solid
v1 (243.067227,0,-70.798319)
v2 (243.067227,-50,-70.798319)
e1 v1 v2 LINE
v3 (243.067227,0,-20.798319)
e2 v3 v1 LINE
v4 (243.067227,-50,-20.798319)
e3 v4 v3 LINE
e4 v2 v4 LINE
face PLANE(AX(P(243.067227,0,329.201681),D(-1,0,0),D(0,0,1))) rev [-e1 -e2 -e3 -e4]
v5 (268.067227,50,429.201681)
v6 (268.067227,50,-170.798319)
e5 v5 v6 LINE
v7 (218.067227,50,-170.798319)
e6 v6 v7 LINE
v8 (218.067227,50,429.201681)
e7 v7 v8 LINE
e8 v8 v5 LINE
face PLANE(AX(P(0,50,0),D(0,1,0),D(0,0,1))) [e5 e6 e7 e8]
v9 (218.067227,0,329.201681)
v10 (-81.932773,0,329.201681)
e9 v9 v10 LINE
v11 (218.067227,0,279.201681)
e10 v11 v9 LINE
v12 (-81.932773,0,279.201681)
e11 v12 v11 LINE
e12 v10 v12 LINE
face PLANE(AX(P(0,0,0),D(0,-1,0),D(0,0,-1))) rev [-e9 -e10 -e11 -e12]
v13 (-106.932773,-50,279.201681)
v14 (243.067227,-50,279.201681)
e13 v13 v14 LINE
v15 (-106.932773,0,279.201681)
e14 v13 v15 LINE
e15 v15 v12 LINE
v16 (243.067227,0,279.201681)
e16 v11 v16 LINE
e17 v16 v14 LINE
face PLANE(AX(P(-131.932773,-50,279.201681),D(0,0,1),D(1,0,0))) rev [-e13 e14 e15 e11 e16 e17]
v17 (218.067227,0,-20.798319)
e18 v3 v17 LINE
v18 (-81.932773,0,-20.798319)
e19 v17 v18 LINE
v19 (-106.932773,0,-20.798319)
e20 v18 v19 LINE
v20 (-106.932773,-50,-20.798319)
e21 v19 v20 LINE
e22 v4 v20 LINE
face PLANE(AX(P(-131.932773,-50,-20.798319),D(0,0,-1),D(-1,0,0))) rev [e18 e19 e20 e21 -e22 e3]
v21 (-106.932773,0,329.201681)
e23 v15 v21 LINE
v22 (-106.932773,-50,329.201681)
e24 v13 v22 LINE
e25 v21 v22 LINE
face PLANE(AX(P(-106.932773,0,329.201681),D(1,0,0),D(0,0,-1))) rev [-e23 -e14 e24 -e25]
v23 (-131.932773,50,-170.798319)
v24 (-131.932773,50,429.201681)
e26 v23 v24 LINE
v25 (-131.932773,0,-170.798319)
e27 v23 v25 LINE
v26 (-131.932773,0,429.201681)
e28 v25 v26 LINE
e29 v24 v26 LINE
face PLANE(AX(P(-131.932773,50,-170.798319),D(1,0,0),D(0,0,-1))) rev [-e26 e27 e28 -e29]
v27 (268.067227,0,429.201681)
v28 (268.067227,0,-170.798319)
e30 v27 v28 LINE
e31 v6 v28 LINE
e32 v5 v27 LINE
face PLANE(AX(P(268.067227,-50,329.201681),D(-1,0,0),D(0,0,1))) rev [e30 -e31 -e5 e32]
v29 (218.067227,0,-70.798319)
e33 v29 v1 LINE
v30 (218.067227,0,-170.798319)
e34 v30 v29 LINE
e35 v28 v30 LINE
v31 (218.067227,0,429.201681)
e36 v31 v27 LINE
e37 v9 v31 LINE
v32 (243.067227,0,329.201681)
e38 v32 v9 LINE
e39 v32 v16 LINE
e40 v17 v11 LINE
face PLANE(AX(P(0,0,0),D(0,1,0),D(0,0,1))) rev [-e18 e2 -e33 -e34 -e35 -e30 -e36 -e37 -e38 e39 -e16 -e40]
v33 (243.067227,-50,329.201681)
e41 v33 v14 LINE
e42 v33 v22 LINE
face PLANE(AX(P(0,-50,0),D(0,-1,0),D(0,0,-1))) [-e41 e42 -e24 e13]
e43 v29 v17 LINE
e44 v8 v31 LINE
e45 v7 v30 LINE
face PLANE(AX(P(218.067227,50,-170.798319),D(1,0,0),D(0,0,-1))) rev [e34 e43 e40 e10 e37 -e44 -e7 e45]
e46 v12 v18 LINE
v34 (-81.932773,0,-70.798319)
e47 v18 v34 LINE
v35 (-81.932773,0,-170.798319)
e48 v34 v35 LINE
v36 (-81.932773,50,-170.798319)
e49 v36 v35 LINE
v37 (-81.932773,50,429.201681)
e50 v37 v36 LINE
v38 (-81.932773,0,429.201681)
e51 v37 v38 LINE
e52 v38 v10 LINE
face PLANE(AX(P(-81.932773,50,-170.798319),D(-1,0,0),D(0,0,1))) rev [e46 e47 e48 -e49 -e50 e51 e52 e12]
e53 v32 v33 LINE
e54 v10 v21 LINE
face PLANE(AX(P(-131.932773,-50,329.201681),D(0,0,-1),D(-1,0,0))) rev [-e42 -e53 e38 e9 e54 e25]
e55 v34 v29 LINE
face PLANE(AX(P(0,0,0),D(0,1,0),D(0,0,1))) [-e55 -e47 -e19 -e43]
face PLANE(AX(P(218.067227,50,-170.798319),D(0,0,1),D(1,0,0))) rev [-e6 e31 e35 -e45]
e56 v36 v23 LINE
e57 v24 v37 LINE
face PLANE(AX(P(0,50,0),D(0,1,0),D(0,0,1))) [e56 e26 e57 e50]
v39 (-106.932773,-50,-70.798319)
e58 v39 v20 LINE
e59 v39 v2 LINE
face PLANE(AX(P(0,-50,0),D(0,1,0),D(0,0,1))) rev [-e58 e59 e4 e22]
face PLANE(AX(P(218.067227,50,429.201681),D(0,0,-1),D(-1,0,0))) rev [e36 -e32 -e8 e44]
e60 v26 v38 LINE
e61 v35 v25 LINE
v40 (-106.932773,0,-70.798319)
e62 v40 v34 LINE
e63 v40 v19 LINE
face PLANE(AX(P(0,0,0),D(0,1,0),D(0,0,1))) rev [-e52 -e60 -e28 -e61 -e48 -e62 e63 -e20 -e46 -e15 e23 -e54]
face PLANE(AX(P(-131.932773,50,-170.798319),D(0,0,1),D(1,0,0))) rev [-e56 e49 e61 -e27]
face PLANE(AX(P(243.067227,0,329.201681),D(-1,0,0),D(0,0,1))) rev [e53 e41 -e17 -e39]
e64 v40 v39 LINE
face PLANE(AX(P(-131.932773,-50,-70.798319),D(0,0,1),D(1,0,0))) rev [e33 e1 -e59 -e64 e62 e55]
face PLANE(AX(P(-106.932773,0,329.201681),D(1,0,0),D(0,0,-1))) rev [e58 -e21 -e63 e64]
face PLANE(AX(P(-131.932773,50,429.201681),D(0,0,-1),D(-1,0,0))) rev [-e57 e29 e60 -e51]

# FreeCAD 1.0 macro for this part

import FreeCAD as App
import Part
import Sketcher
Q = App.Units.Quantity


def add_polygon(sketch, points):
    """Adds a closed chain of lines whose ends are joined by coincident constraints."""
    first, n = sketch.GeometryCount, len(points)
    for a, b in zip(points, points[1:] + points[:1]):
        sketch.addGeometry(Part.LineSegment(App.Vector(*a, 0), App.Vector(*b, 0)), False)
    for i in range(n):
        sketch.addConstraint(Sketcher.Constraint("Coincident", first + i, 2, first + (i + 1) % n, 1))

doc = App.newDocument("Part")
body = doc.addObject("PartDesign::Body", "Body")

sketch1 = doc.addObject("Sketcher::SketchObject", "Sketch")
body.addObject(sketch1)
sketch1.AttachmentSupport = (doc.XZ_Plane, [""])
sketch1.MapMode = "FlatFace"
add_polygon(sketch1, [(-132, -171), (-132, 429), (-82, 429), (-82, -171)])
sketch1.addConstraint([
    Sketcher.Constraint("Vertical", 0),
    Sketcher.Constraint("Horizontal", 1),
    Sketcher.Constraint("Vertical", 2),
    Sketcher.Constraint("Horizontal", 3),
    Sketcher.Constraint("DistanceX", 1, 1, 1, 2, Q("50 mm")),
    Sketcher.Constraint("DistanceY", 0, 1, 0, 2, Q("600 mm")),
    Sketcher.Constraint("DistanceY", -1, 1, 0, 2, Q("429.201681 mm")),
    Sketcher.Constraint("DistanceX", 0, 2, -1, 1, Q("131.932773 mm")),
])
pad1 = doc.addObject("PartDesign::Pad", "Pad")
body.addObject(pad1)
pad1.Profile = sketch1
pad1.Length = 50
pad1.Reversed = True
body2 = doc.addObject("PartDesign::Body", "Body001")

sketch2 = doc.addObject("Sketcher::SketchObject", "Sketch001")
body2.addObject(sketch2)
sketch2.AttachmentSupport = (doc.getObject("XZ_Plane001"), [""])
sketch2.MapMode = "FlatFace"
add_polygon(sketch2, [(218, -171), (218, 429), (268, 429), (268, -171)])
sketch2.addConstraint([
    Sketcher.Constraint("Vertical", 0),
    Sketcher.Constraint("Horizontal", 1),
    Sketcher.Constraint("Vertical", 2),
    Sketcher.Constraint("Horizontal", 3),
    Sketcher.Constraint("DistanceX", 1, 1, 1, 2, Q("50 mm")),
    Sketcher.Constraint("DistanceY", 0, 1, 0, 2, Q("600 mm")),
    Sketcher.Constraint("DistanceY", -1, 1, 0, 2, Q("429.201681 mm")),
    Sketcher.Constraint("DistanceX", -1, 1, 0, 2, Q("218.067227 mm")),
])
pad2 = doc.addObject("PartDesign::Pad", "Pad001")
body2.addObject(pad2)
pad2.Profile = sketch2
pad2.Length = 50
pad2.Reversed = True
body.AllowCompound = True
doc.recompute()

boolean = doc.addObject("PartDesign::Boolean", "Boolean")
body.addObject(boolean)
boolean.Type = "Fuse"
boolean.addObjects([body2])

sketch3 = doc.addObject("Sketcher::SketchObject", "Sketch002")
body.addObject(sketch3)
sketch3.AttachmentSupport = (doc.XZ_Plane, [""])
sketch3.MapMode = "FlatFace"
add_polygon(sketch3, [(268, 279), (268, 329), (-132, 329), (-132, 279)])
add_polygon(sketch3, [(268, -71), (268, -21), (-132, -21), (-132, -71)])
sketch3.addConstraint([
    Sketcher.Constraint("Vertical", 0),
    Sketcher.Constraint("Horizontal", 1),
    Sketcher.Constraint("Vertical", 2),
    Sketcher.Constraint("Horizontal", 3),
    Sketcher.Constraint("Vertical", 4),
    Sketcher.Constraint("Horizontal", 5),
    Sketcher.Constraint("Vertical", 6),
    Sketcher.Constraint("Horizontal", 7),
    Sketcher.Constraint("Vertical", 3, 2, 4, 2),
    Sketcher.Constraint("Vertical", 2, 2, 5, 2),
    Sketcher.Constraint("Equal", 2, 4),
    Sketcher.Constraint("DistanceX", 1, 2, 1, 1, Q("400 mm")),
    Sketcher.Constraint("DistanceY", 0, 1, 0, 2, Q("50 mm")),
    Sketcher.Constraint("DistanceY", 4, 2, 3, 2, Q("300 mm")),
    Sketcher.Constraint("DistanceY", -1, 1, 0, 2, Q("329.201681 mm")),
    Sketcher.Constraint("DistanceX", -1, 1, 0, 2, Q("268.067227 mm")),
])
pad3 = doc.addObject("PartDesign::Pad", "Pad002")
body.addObject(pad3)
pad3.Profile = sketch3
pad3.Length = 50

sketch4 = doc.addObject("Sketcher::SketchObject", "Sketch003")
body.addObject(sketch4)
sketch4.AttachmentSupport = (doc.XZ_Plane, [""])
sketch4.MapMode = "FlatFace"
sketch4.AttachmentOffset = App.Placement(App.Vector(0, 0, 50), App.Rotation())
add_polygon(sketch4, [(268, -71), (268, 329), (243, 329), (243, -71)])
add_polygon(sketch4, [(-107, -71), (-107, 329), (-132, 329), (-132, -71)])
sketch4.addConstraint([
    Sketcher.Constraint("Vertical", 0),
    Sketcher.Constraint("Horizontal", 1),
    Sketcher.Constraint("Vertical", 2),
    Sketcher.Constraint("Horizontal", 3),
    Sketcher.Constraint("Vertical", 4),
    Sketcher.Constraint("Horizontal", 5),
    Sketcher.Constraint("Vertical", 6),
    Sketcher.Constraint("Horizontal", 7),
    Sketcher.Constraint("Horizontal", 1, 2, 4, 2),
    Sketcher.Constraint("Horizontal", 3, 2, 6, 2),
    Sketcher.Constraint("Equal", 3, 5),
    Sketcher.Constraint("DistanceX", 1, 2, 1, 1, Q("25 mm")),
    Sketcher.Constraint("DistanceY", 0, 1, 0, 2, Q("400 mm")),
    Sketcher.Constraint("DistanceX", 4, 2, 1, 2, Q("350 mm")),
    Sketcher.Constraint("DistanceY", -1, 1, 0, 2, Q("329.201681 mm")),
    Sketcher.Constraint("DistanceX", -1, 1, 0, 2, Q("268.067227 mm")),
])
pocket1 = doc.addObject("PartDesign::Pocket", "Pocket")
body.addObject(pocket1)
pocket1.Profile = sketch4
pocket1.Length = 50

doc.recompute()
